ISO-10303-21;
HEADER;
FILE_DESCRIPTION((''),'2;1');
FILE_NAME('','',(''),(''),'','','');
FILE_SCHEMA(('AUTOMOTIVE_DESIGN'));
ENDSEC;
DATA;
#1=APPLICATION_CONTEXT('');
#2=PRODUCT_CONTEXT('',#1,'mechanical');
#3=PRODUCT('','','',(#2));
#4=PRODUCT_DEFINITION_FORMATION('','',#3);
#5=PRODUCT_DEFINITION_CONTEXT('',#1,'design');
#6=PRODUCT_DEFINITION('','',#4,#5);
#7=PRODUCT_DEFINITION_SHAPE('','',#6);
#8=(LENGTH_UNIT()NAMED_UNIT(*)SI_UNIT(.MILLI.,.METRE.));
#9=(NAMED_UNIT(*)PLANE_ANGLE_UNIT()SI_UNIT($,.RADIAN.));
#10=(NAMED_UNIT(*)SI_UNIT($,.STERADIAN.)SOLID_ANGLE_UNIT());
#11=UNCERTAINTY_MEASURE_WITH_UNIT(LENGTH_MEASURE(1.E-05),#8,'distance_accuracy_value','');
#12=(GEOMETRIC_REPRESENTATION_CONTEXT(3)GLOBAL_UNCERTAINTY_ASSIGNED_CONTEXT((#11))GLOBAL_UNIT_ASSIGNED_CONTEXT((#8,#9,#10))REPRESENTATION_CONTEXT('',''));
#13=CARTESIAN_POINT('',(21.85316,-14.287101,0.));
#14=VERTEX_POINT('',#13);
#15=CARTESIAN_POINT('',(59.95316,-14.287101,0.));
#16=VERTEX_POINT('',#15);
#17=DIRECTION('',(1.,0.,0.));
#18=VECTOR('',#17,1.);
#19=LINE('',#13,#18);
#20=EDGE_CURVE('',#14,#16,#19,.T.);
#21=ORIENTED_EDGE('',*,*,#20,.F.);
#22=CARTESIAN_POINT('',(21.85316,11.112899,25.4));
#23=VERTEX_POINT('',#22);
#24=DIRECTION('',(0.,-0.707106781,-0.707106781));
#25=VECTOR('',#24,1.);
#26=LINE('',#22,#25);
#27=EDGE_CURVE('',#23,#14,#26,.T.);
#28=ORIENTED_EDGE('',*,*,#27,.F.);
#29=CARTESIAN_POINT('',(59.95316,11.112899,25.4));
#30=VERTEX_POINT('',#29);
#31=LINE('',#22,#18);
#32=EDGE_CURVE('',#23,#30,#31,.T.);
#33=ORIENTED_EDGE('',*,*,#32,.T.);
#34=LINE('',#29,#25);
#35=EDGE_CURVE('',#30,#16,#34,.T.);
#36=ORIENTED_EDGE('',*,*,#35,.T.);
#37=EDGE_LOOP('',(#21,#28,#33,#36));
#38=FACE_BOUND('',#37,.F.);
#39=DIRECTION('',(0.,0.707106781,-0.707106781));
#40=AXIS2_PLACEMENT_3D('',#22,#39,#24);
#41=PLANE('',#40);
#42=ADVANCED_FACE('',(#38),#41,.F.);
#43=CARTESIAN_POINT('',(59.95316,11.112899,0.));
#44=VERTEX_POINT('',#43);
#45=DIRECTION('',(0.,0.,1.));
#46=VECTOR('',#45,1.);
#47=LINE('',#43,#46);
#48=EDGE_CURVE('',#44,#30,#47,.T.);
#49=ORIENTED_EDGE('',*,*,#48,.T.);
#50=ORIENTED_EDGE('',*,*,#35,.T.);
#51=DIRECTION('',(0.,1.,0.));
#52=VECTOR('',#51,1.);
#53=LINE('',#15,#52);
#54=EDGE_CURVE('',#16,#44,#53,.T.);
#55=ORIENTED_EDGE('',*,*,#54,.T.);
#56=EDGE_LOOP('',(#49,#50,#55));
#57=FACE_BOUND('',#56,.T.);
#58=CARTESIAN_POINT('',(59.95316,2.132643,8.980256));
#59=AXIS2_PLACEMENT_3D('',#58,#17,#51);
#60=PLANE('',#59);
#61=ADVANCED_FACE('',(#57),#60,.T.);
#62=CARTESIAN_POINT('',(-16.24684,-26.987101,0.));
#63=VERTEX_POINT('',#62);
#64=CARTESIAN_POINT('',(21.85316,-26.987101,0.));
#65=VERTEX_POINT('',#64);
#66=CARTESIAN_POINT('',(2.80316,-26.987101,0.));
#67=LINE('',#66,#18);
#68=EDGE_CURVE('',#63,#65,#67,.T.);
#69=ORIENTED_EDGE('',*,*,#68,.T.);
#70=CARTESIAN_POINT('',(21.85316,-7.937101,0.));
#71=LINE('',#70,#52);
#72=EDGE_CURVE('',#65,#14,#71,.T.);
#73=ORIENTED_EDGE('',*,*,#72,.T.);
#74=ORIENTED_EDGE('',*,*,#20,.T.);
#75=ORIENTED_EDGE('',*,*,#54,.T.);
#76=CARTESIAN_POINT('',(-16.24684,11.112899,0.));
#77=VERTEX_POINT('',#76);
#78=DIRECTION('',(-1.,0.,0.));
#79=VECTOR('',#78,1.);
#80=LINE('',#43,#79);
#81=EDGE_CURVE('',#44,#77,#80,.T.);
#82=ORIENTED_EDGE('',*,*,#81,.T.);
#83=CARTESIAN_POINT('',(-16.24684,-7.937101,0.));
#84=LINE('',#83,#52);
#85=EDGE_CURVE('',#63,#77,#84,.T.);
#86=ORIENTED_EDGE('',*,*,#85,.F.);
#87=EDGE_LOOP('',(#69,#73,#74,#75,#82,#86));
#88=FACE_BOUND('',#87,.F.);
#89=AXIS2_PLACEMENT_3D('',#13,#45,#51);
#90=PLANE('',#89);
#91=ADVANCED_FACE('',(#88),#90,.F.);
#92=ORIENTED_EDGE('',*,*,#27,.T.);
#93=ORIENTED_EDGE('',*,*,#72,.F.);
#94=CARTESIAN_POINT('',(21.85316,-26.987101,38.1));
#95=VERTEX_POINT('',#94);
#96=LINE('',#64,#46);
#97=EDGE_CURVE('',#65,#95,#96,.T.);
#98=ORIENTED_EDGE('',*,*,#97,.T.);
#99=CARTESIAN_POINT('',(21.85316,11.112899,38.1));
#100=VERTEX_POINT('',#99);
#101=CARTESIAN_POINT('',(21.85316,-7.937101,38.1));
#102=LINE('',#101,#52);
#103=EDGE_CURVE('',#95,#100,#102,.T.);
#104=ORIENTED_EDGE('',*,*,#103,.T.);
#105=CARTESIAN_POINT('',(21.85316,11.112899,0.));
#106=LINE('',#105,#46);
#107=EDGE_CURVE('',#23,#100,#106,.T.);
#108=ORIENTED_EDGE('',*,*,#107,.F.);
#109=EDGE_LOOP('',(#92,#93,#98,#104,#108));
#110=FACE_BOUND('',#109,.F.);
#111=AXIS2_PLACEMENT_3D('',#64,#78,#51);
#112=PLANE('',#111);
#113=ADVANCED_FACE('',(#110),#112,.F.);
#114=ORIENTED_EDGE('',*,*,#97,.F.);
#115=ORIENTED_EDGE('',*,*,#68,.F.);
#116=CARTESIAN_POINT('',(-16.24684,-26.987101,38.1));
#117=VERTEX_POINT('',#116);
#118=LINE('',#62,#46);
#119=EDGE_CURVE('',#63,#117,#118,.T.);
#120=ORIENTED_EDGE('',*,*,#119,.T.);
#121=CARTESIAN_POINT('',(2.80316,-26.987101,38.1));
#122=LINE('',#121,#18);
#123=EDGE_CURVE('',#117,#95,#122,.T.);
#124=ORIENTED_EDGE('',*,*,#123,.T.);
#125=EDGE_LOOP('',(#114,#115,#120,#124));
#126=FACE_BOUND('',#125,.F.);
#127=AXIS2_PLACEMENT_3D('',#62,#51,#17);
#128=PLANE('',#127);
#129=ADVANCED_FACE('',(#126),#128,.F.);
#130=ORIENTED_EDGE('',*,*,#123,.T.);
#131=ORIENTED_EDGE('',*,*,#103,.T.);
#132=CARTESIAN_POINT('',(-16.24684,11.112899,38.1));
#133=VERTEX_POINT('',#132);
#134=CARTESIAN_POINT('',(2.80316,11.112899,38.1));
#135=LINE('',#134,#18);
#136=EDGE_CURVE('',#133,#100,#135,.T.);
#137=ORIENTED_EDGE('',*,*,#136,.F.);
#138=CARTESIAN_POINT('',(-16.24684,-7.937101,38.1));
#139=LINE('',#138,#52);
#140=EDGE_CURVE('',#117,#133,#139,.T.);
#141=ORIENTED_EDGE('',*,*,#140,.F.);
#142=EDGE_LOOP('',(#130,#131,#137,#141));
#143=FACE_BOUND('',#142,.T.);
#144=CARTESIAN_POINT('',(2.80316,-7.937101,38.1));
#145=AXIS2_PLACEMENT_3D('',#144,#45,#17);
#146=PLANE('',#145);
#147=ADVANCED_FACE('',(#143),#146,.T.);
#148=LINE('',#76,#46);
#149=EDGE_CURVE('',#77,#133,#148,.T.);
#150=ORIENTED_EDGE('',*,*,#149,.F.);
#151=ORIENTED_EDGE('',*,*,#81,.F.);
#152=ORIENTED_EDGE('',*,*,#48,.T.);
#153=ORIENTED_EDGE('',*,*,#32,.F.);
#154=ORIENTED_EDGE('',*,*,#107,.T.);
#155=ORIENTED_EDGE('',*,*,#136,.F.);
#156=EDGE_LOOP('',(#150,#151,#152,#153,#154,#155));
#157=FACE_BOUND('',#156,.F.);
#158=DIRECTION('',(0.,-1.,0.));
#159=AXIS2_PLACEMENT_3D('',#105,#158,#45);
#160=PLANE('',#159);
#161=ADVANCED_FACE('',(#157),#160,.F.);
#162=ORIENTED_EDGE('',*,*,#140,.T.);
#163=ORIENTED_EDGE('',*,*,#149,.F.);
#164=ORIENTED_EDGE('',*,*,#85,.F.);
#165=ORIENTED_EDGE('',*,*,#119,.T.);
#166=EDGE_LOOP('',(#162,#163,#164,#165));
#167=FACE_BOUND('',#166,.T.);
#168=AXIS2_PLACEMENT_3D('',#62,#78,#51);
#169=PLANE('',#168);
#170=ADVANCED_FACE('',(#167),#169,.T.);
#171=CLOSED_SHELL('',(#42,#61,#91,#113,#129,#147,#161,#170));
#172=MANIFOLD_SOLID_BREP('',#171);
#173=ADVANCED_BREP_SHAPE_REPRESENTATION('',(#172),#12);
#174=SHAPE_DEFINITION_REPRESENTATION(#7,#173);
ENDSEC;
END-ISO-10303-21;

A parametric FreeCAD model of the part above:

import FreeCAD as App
import Part
import Sketcher

V = App.Vector
Q = App.Units.Quantity


def add_polygon(sketch, points):
    """Adds a closed chain of lines whose ends are joined by coincident constraints."""
    first, n = sketch.GeometryCount, len(points)
    for a, b in zip(points, points[1:] + points[:1]):
        sketch.addGeometry(Part.LineSegment(App.Vector(*a, 0), App.Vector(*b, 0)), False)
    for i in range(n):
        sketch.addConstraint(Sketcher.Constraint("Coincident", first + i, 2, first + (i + 1) % n, 1))

doc = App.newDocument("Part")
params = doc.addObject("Spreadsheet::Sheet", "Params")
for row, (alias, value) in enumerate([
    ("sketch1_width", "1.5 in"),
    ("pad1_length", "1.5 in"),
    ("sketch2_width", "1 in"),
    ("pad2_length", "1.5 in"),
], start=1):
    params.set(f"A{row}", alias)
    params.set(f"B{row}", "=" + value)
    params.setAlias(f"B{row}", alias)

body = doc.addObject("PartDesign::Body", "Body")

sketch1 = body.newObject("Sketcher::SketchObject", "Sketch")
sketch1.AttachmentSupport = (doc.getObject("XY_Plane"), [""])
sketch1.MapMode = "FlatFace"
add_polygon(sketch1, [(-16, 11), (-16, -27), (22, -27), (22, 11)])
sketch1.addConstraint(Sketcher.Constraint("Vertical", 0))
sketch1.addConstraint(Sketcher.Constraint("Horizontal", 1))
sketch1.addConstraint(Sketcher.Constraint("Vertical", 2))
sketch1.addConstraint(Sketcher.Constraint("Horizontal", 3))
sketch1.addConstraint(Sketcher.Constraint("Equal", 3, 0))
sketch1.addConstraint(Sketcher.Constraint("DistanceX", 1, 1, 1, 2, Q("1.5 in")))
sketch1.addConstraint(Sketcher.Constraint("DistanceY", 0, 2, -1, 1, 26.987101))
sketch1.addConstraint(Sketcher.Constraint("DistanceX", 0, 2, -1, 1, 16.24684))
sketch1.setExpression("Constraints[9]", "Params.sketch1_width")
pad1 = body.newObject("PartDesign::Pad", "Pad")
pad1.Profile = sketch1
pad1.setExpression("Length", "Params.pad1_length")

sketch2 = body.newObject("Sketcher::SketchObject", "Sketch001")
sketch2.AttachmentSupport = (doc.getObject("YZ_Plane"), [""])
sketch2.MapMode = "FlatFace"
sketch2.AttachmentOffset = App.Placement(V(0, 0, 21.85316), App.Rotation())
add_polygon(sketch2, [(11, 0), (11, 25), (-14, 0)])
sketch2.addConstraint(Sketcher.Constraint("Vertical", 0))
sketch2.addConstraint(Sketcher.Constraint("Horizontal", 2))
sketch2.addConstraint(Sketcher.Constraint("PointOnObject", 1, 2, -1))
sketch2.addConstraint(Sketcher.Constraint("Equal", 2, 0))
sketch2.addConstraint(Sketcher.Constraint("DistanceX", 2, 1, 2, 2, Q("1 in")))
sketch2.addConstraint(Sketcher.Constraint("DistanceX", -1, 1, 0, 2, 11.112899))
sketch2.setExpression("Constraints[7]", "Params.sketch2_width")
pad2 = body.newObject("PartDesign::Pad", "Pad001")
pad2.Profile = sketch2
pad2.setExpression("Length", "Params.pad2_length")

doc.recompute()
